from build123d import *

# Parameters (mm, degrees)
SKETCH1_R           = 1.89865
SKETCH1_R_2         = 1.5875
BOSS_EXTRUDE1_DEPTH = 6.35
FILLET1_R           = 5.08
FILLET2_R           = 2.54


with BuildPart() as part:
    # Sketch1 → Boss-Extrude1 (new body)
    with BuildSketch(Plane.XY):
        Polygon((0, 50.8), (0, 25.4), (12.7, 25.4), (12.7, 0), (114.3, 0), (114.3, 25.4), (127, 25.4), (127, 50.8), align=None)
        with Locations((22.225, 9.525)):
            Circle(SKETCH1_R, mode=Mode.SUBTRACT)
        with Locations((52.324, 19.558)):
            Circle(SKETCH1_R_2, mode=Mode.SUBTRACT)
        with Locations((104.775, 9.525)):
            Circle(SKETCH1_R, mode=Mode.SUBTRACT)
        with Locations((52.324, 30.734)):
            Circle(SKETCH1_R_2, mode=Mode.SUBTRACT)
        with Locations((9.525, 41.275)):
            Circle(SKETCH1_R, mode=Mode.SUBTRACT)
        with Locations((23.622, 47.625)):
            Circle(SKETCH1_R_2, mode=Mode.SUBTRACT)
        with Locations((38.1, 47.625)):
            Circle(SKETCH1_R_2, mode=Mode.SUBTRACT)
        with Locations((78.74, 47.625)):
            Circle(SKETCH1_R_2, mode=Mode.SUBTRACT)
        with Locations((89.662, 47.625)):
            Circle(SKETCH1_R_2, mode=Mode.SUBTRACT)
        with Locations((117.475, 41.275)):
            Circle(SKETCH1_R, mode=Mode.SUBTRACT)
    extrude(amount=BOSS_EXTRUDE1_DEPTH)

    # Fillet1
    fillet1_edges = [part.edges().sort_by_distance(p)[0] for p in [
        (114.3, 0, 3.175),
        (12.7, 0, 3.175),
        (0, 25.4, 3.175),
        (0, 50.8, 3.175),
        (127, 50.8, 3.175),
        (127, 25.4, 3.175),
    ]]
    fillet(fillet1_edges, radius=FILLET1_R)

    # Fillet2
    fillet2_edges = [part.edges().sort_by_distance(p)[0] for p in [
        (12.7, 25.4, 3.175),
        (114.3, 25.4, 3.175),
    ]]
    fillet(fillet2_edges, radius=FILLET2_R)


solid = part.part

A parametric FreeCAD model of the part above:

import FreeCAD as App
import Part
import Sketcher

V = App.Vector
Q = App.Units.Quantity


def edges_at(feature, points):
    """Names of the edges that pass closest to the given points."""
    edges = feature.Shape.Edges
    near = lambda p: min(range(len(edges)), key=lambda i: edges[i].distToShape(Part.Vertex(*p))[0])
    return sorted({f"Edge{near(p) + 1}" for p in points})


def add_polygon(sketch, points):
    """Adds a closed chain of lines whose ends are joined by coincident constraints."""
    first, n = sketch.GeometryCount, len(points)
    for a, b in zip(points, points[1:] + points[:1]):
        sketch.addGeometry(Part.LineSegment(App.Vector(*a, 0), App.Vector(*b, 0)), False)
    for i in range(n):
        sketch.addConstraint(Sketcher.Constraint("Coincident", first + i, 2, first + (i + 1) % n, 1))

doc = App.newDocument("Part")
params = doc.addObject("Spreadsheet::Sheet", "Params")
for row, (alias, value) in enumerate([
    ("sketch1_width", "4 in"),
    ("sketch1_width2", "5 in"),
    ("sketch1_height", "1 in"),
    ("sketch1_diameter", "0.125 in"),
    ("pad1_length", "0.25 in"),
    ("fillet_radius", "0.2 in"),
    ("fillet2_radius", "0.1 in"),
], start=1):
    params.set(f"A{row}", alias)
    params.set(f"B{row}", "=" + value)
    params.setAlias(f"B{row}", alias)

body = doc.addObject("PartDesign::Body", "Body")

sketch1 = body.newObject("Sketcher::SketchObject", "Sketch")
sketch1.AttachmentSupport = (doc.getObject("XY_Plane"), [""])
sketch1.MapMode = "FlatFace"
add_polygon(sketch1, [(0, 50.8), (0, 25.4), (12.7, 25.4), (12.7, 0), (114.3, 0), (114.3, 25.4), (127, 25.4), (127, 50.8)])
sketch1.addGeometry(Part.Circle(V(22.2, 9.5, 0), V(0, 0, 1), 1.9), False)
sketch1.addGeometry(Part.Circle(V(52.3, 19.6, 0), V(0, 0, 1), 1.6), False)
sketch1.addGeometry(Part.Circle(V(104.8, 9.5, 0), V(0, 0, 1), 1.9), False)
sketch1.addGeometry(Part.Circle(V(52.3, 30.7, 0), V(0, 0, 1), 1.6), False)
sketch1.addGeometry(Part.Circle(V(9.5, 41.3, 0), V(0, 0, 1), 1.9), False)
sketch1.addGeometry(Part.Circle(V(23.6, 47.6, 0), V(0, 0, 1), 1.6), False)
sketch1.addGeometry(Part.Circle(V(38.1, 47.6, 0), V(0, 0, 1), 1.6), False)
sketch1.addGeometry(Part.Circle(V(78.7, 47.6, 0), V(0, 0, 1), 1.6), False)
sketch1.addGeometry(Part.Circle(V(89.7, 47.6, 0), V(0, 0, 1), 1.6), False)
sketch1.addGeometry(Part.Circle(V(117.5, 41.3, 0), V(0, 0, 1), 1.9), False)
sketch1.addConstraint([
    Sketcher.Constraint("Vertical", 0),
    Sketcher.Constraint("Horizontal", 1),
    Sketcher.Constraint("Vertical", 2),
    Sketcher.Constraint("Horizontal", 3),
    Sketcher.Constraint("Vertical", 4),
    Sketcher.Constraint("Horizontal", 5),
    Sketcher.Constraint("Vertical", 6),
    Sketcher.Constraint("Horizontal", 7),
    Sketcher.Constraint("Equal", 8, 10),
    Sketcher.Constraint("Equal", 9, 11),
    Sketcher.Constraint("Equal", 10, 12),
    Sketcher.Constraint("Equal", 11, 13),
    Sketcher.Constraint("Equal", 13, 14),
    Sketcher.Constraint("Equal", 14, 15),
    Sketcher.Constraint("Equal", 15, 16),
    Sketcher.Constraint("Equal", 12, 17),
    Sketcher.Constraint("PointOnObject", 0, 2, -2),
    Sketcher.Constraint("PointOnObject", 2, 2, -1),
    Sketcher.Constraint("Horizontal", 8, 3, 10, 3),
    Sketcher.Constraint("Horizontal", 13, 3, 14, 3),
    Sketcher.Constraint("Horizontal", 14, 3, 15, 3),
    Sketcher.Constraint("Horizontal", 15, 3, 16, 3),
    Sketcher.Constraint("Horizontal", 12, 3, 17, 3),
    Sketcher.Constraint("Horizontal", 1, 2, 4, 2),
    Sketcher.Constraint("Vertical", 9, 3, 11, 3),
    Sketcher.Constraint("Equal", 1, 5),
    Sketcher.Constraint("Equal", 0, 2),
    Sketcher.Constraint("DistanceX", 3, 1, 3, 2, Q("4 in")),
    Sketcher.Constraint("DistanceX", 7, 2, 7, 1, Q("5 in")),
    Sketcher.Constraint("DistanceY", 0, 2, 0, 1, Q("1 in")),
    Sketcher.Constraint("Diameter", 9, Q("0.125 in")),
    Sketcher.Constraint("DistanceX", 1, 2, 14, 3, Q("1 in")),
    Sketcher.Constraint("Diameter", 8, Q("0.1495 in")),
    Sketcher.Constraint("DistanceX", -1, 1, 15, 3, Q("3.1 in")),
    Sketcher.Constraint("DistanceX", 12, 3, 8, 3, Q("0.5 in")),
    Sketcher.Constraint("DistanceY", 8, 3, 13, 3, Q("1.5 in")),
    Sketcher.Constraint("DistanceX", 10, 3, 17, 3, Q("0.5 in")),
    Sketcher.Constraint("DistanceX", -1, 1, 9, 3, Q("2.06 in")),
    Sketcher.Constraint("DistanceY", -1, 1, 9, 3, Q("0.77 in")),
    Sketcher.Constraint("DistanceY", -1, 1, 11, 3, Q("1.21 in")),
    Sketcher.Constraint("DistanceX", -1, 1, 13, 3, Q("0.93 in")),
    Sketcher.Constraint("DistanceX", -1, 1, 16, 3, Q("3.53 in")),
    Sketcher.Constraint("DistanceX", 8, 3, 10, 3, Q("3.25 in")),
    Sketcher.Constraint("DistanceY", 8, 3, 12, 3, Q("1.25 in")),
    Sketcher.Constraint("DistanceX", -1, 1, 8, 3, Q("0.875 in")),
    Sketcher.Constraint("DistanceY", -1, 1, 8, 3, Q("0.375 in")),
])
sketch1.setExpression("Constraints[35]", "Params.sketch1_width")
sketch1.setExpression("Constraints[36]", "Params.sketch1_width2")
sketch1.setExpression("Constraints[37]", "Params.sketch1_height")
sketch1.setExpression("Constraints[38]", "Params.sketch1_diameter")
pad1 = body.newObject("PartDesign::Pad", "Pad")
pad1.Profile = sketch1
pad1.setExpression("Length", "Params.pad1_length")
doc.recompute()

fillet = body.newObject("PartDesign::Fillet", "Fillet")
fillet.Base = (pad1, edges_at(pad1, [
    (114.3, 0, 3.175),
    (12.7, 0, 3.175),
    (0, 25.4, 3.175),
    (0, 50.8, 3.175),
    (127, 50.8, 3.175),
    (127, 25.4, 3.175),
]))
fillet.setExpression("Radius", "Params.fillet_radius")
doc.recompute()

fillet2 = body.newObject("PartDesign::Fillet", "Fillet001")
fillet2.Base = (fillet, edges_at(fillet, [(12.7, 25.4, 3.175), (114.3, 25.4, 3.175)]))
fillet2.setExpression("Radius", "Params.fillet2_radius")

doc.recompute()
